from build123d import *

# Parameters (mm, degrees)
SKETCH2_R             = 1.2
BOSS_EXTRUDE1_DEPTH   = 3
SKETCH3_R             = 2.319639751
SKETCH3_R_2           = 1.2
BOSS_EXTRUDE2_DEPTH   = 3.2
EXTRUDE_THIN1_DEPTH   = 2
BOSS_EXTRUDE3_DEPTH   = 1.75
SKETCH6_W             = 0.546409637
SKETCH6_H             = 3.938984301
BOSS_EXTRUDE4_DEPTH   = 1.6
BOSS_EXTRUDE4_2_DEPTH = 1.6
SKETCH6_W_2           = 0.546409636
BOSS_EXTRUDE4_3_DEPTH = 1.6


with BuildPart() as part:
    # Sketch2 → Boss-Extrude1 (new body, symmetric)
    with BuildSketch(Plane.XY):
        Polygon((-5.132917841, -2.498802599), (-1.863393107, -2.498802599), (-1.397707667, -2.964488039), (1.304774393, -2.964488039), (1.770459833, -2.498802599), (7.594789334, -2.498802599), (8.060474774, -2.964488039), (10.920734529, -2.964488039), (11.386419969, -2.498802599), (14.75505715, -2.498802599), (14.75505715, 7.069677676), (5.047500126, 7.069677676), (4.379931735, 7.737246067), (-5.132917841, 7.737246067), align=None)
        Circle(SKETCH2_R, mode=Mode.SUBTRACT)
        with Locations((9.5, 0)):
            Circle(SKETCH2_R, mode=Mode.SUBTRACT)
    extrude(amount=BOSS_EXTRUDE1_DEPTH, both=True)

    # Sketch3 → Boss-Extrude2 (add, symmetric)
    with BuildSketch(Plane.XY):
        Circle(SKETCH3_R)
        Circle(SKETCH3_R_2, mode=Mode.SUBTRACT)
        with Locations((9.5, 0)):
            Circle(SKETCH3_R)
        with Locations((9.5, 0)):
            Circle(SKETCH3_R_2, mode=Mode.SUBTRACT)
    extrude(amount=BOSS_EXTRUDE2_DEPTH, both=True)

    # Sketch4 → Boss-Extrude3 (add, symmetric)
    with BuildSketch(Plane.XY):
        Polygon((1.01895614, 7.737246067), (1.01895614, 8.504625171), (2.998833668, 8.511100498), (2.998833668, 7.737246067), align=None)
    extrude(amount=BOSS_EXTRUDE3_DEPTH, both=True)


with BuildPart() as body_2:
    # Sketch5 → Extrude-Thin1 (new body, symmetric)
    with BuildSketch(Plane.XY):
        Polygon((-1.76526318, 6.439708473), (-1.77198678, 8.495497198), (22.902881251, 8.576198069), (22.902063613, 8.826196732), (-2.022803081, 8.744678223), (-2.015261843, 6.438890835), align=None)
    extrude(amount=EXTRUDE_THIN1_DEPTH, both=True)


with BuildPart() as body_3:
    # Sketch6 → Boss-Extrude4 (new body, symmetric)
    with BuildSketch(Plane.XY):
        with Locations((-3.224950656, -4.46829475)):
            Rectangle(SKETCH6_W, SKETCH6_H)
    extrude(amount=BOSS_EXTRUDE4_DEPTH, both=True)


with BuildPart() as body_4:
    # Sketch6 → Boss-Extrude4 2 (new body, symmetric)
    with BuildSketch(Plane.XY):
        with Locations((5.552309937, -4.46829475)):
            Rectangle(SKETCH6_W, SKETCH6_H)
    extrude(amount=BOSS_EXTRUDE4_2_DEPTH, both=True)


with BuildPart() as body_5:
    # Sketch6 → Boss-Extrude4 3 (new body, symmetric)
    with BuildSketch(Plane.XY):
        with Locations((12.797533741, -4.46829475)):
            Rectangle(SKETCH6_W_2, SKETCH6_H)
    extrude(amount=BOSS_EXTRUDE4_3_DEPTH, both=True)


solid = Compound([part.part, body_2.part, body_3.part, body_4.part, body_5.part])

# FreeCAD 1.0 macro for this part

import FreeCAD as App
import Part
import Sketcher
from FreeCAD import Vector
Q = App.Units.Quantity


def add_polygon(sketch, points):
    """Adds a closed chain of lines whose ends are joined by coincident constraints."""
    first, n = sketch.GeometryCount, len(points)
    for a, b in zip(points, points[1:] + points[:1]):
        sketch.addGeometry(Part.LineSegment(App.Vector(*a, 0), App.Vector(*b, 0)), False)
    for i in range(n):
        sketch.addConstraint(Sketcher.Constraint("Coincident", first + i, 2, first + (i + 1) % n, 1))

doc = App.newDocument("Part")
body = doc.addObject("PartDesign::Body", "Body")

sketch1 = doc.addObject("Sketcher::SketchObject", "Sketch")
body.addObject(sketch1)
sketch1.AttachmentSupport = (doc.XY_Plane, [""])
sketch1.MapMode = "FlatFace"
add_polygon(sketch1, [(-5.1, -2.5), (-1.9, -2.5), (-1.4, -3), (1.3, -3), (1.8, -2.5), (7.6, -2.5), (8.1, -3), (10.9, -3), (11.4, -2.5), (14.8, -2.5), (14.8, 7.1), (5, 7.1), (4.4, 7.7), (-5.1, 7.7)])
sketch1.addGeometry(Part.Circle(Vector(0, 0, 0), Vector(0, 0, 1), 1.2), False)
sketch1.addGeometry(Part.Circle(Vector(9.5, 0, 0), Vector(0, 0, 1), 1.2), False)
sketch1.addConstraint(Sketcher.Constraint("Horizontal", 0))
sketch1.addConstraint(Sketcher.Constraint("Horizontal", 2))
sketch1.addConstraint(Sketcher.Constraint("Horizontal", 4))
sketch1.addConstraint(Sketcher.Constraint("Horizontal", 6))
sketch1.addConstraint(Sketcher.Constraint("Horizontal", 8))
sketch1.addConstraint(Sketcher.Constraint("Vertical", 9))
sketch1.addConstraint(Sketcher.Constraint("Horizontal", 10))
sketch1.addConstraint(Sketcher.Constraint("Horizontal", 12))
sketch1.addConstraint(Sketcher.Constraint("Vertical", 13))
sketch1.addConstraint(Sketcher.Constraint("Coincident", 14, 3, -1, 1))
sketch1.addConstraint(Sketcher.Constraint("Equal", 14, 15))
sketch1.addConstraint(Sketcher.Constraint("PointOnObject", 15, 3, -1))
sketch1.addConstraint(Sketcher.Constraint("Perpendicular", 1, 3))
sketch1.addConstraint(Sketcher.Constraint("Perpendicular", 3, 5))
sketch1.addConstraint(Sketcher.Constraint("Perpendicular", 5, 7))
sketch1.addConstraint(Sketcher.Constraint("Perpendicular", 7, 11))
sketch1.addConstraint(Sketcher.Constraint("Horizontal", 0, 2, 3, 2))
sketch1.addConstraint(Sketcher.Constraint("Horizontal", 2, 2, 5, 2))
sketch1.addConstraint(Sketcher.Constraint("Horizontal", 4, 2, 7, 2))
sketch1.addConstraint(Sketcher.Constraint("Equal", 1, 3))
sketch1.addConstraint(Sketcher.Constraint("Diameter", 14, Q("2.4 mm")))
sketch1.addConstraint(Sketcher.Constraint("DistanceX", -1, 1, 15, 3, Q("9.5 mm")))
sketch1.addConstraint(Sketcher.Constraint("DistanceX", 4, 1, 4, 2, Q("5.82433 mm")))
sketch1.addConstraint(Sketcher.Constraint("DistanceX", 6, 1, 6, 2, Q("2.86026 mm")))
sketch1.addConstraint(Sketcher.Constraint("DistanceX", 12, 2, 12, 1, Q("9.51285 mm")))
sketch1.addConstraint(Sketcher.Constraint("DistanceY", 9, 1, 9, 2, Q("9.56848 mm")))
sketch1.addConstraint(Sketcher.Constraint("DistanceY", 13, 2, 13, 1, Q("10.236049 mm")))
sketch1.addConstraint(Sketcher.Constraint("DistanceX", -1, 1, 10, 2, Q("5.0475 mm")))
sketch1.addConstraint(Sketcher.Constraint("DistanceX", 2, 2, 5, 2, Q("6.7557 mm")))
sketch1.addConstraint(Sketcher.Constraint("DistanceX", 0, 1, 0, 2, Q("3.269525 mm")))
sketch1.addConstraint(Sketcher.Constraint("DistanceX", 2, 1, 2, 2, Q("2.702482 mm")))
sketch1.addConstraint(Sketcher.Constraint("DistanceX", 8, 1, 8, 2, Q("3.368637 mm")))
sketch1.addConstraint(Sketcher.Constraint("DistanceY", 1, 2, -1, 1, Q("2.964488 mm")))
pad1 = doc.addObject("PartDesign::Pad", "Pad")
body.addObject(pad1)
pad1.Profile = sketch1
pad1.Length = 6
pad1.Midplane = True

sketch2 = doc.addObject("Sketcher::SketchObject", "Sketch001")
body.addObject(sketch2)
sketch2.AttachmentSupport = (doc.XY_Plane, [""])
sketch2.MapMode = "FlatFace"
sketch2.addGeometry(Part.Circle(Vector(0, 0, 0), Vector(0, 0, 1), 2.3), False)
sketch2.addGeometry(Part.Circle(Vector(0, 0, 0), Vector(0, 0, 1), 1.2), False)
sketch2.addGeometry(Part.Circle(Vector(9.5, 0, 0), Vector(0, 0, 1), 2.3), False)
sketch2.addGeometry(Part.Circle(Vector(9.5, 0, 0), Vector(0, 0, 1), 1.2), False)
sketch2.addConstraint(Sketcher.Constraint("Coincident", 0, 3, -1, 1))
sketch2.addConstraint(Sketcher.Constraint("Coincident", 1, 3, -1, 1))
sketch2.addConstraint(Sketcher.Constraint("Coincident", 3, 3, 2, 3))
sketch2.addConstraint(Sketcher.Constraint("Equal", 0, 2))
sketch2.addConstraint(Sketcher.Constraint("Equal", 1, 3))
sketch2.addConstraint(Sketcher.Constraint("PointOnObject", 2, 3, -1))
sketch2.addConstraint(Sketcher.Constraint("Diameter", 1, Q("2.4 mm")))
sketch2.addConstraint(Sketcher.Constraint("DistanceX", -1, 1, 2, 3, Q("9.5 mm")))
sketch2.addConstraint(Sketcher.Constraint("Diameter", 0, Q("4.63928 mm")))
pad2 = doc.addObject("PartDesign::Pad", "Pad001")
body.addObject(pad2)
pad2.Profile = sketch2
pad2.Length = 6.4
pad2.Midplane = True

sketch3 = doc.addObject("Sketcher::SketchObject", "Sketch002")
body.addObject(sketch3)
sketch3.AttachmentSupport = (doc.XY_Plane, [""])
sketch3.MapMode = "FlatFace"
add_polygon(sketch3, [(1, 8.5), (1, 7.7), (3, 7.7), (3, 8.5)])
sketch3.addConstraint(Sketcher.Constraint("Vertical", 0))
sketch3.addConstraint(Sketcher.Constraint("Horizontal", 1))
sketch3.addConstraint(Sketcher.Constraint("Vertical", 2))
sketch3.addConstraint(Sketcher.Constraint("DistanceY", 0, 2, 0, 1, Q("0.767379 mm")))
sketch3.addConstraint(Sketcher.Constraint("DistanceY", -1, 1, 2, 2, Q("8.5111 mm")))
sketch3.addConstraint(Sketcher.Constraint("Distance", 3, Q("1.979888 mm")))
sketch3.addConstraint(Sketcher.Constraint("DistanceY", 2, 1, 2, 2, Q("0.773854 mm")))
sketch3.addConstraint(Sketcher.Constraint("DistanceX", -1, 1, 0, 2, Q("1.018956 mm")))
pad3 = doc.addObject("PartDesign::Pad", "Pad002")
body.addObject(pad3)
pad3.Profile = sketch3
pad3.Length = 3.5
pad3.Midplane = True
body2 = doc.addObject("PartDesign::Body", "Body001")

sketch4 = doc.addObject("Sketcher::SketchObject", "Sketch003")
body2.addObject(sketch4)
sketch4.AttachmentSupport = (doc.getObject("XY_Plane001"), [""])
sketch4.MapMode = "FlatFace"
add_polygon(sketch4, [(-1.77, 6.44), (-1.77, 8.5), (22.9, 8.58), (22.9, 8.83), (-2.02, 8.74), (-2.02, 6.44)])
sketch4.addConstraint(Sketcher.Constraint("Perpendicular", 0, 1))
sketch4.addConstraint(Sketcher.Constraint("Perpendicular", 1, 2))
sketch4.addConstraint(Sketcher.Constraint("Perpendicular", 2, 3))
sketch4.addConstraint(Sketcher.Constraint("Perpendicular", 3, 4))
sketch4.addConstraint(Sketcher.Constraint("Perpendicular", 4, 5))
sketch4.addConstraint(Sketcher.Constraint("Equal", 2, 5))
sketch4.addConstraint(Sketcher.Constraint("Distance", 2, Q("0.25 mm")))
sketch4.addConstraint(Sketcher.Constraint("Distance", 1, Q("24.675 mm")))
sketch4.addConstraint(Sketcher.Constraint("Distance", 0, Q("2.0558 mm")))
sketch4.addConstraint(Sketcher.Constraint("DistanceY", -1, 1, 1, 2, Q("8.576198 mm")))
sketch4.addConstraint(Sketcher.Constraint("DistanceY", 0, 2, 1, 2, Q("0.080701 mm")))
sketch4.addConstraint(Sketcher.Constraint("DistanceX", -1, 1, 1, 2, Q("22.902881 mm")))
pad4 = doc.addObject("PartDesign::Pad", "Pad003")
body2.addObject(pad4)
pad4.Profile = sketch4
pad4.Length = 4
pad4.Midplane = True
body3 = doc.addObject("PartDesign::Body", "Body002")

sketch5 = doc.addObject("Sketcher::SketchObject", "Sketch004")
body3.addObject(sketch5)
sketch5.AttachmentSupport = (doc.getObject("XY_Plane002"), [""])
sketch5.MapMode = "FlatFace"
add_polygon(sketch5, [(-3.5, -2.5), (-3.5, -6.4), (-3, -6.4), (-3, -2.5)])
sketch5.addConstraint(Sketcher.Constraint("Vertical", 0))
sketch5.addConstraint(Sketcher.Constraint("Horizontal", 1))
sketch5.addConstraint(Sketcher.Constraint("Vertical", 2))
sketch5.addConstraint(Sketcher.Constraint("Horizontal", 3))
sketch5.addConstraint(Sketcher.Constraint("DistanceX", 1, 1, 1, 2, Q("0.54641 mm")))
sketch5.addConstraint(Sketcher.Constraint("DistanceY", 0, 2, 0, 1, Q("3.938984 mm")))
sketch5.addConstraint(Sketcher.Constraint("DistanceX", 0, 2, -1, 1, Q("3.498155 mm")))
sketch5.addConstraint(Sketcher.Constraint("DistanceY", 0, 2, -1, 1, Q("6.437787 mm")))
pad5 = doc.addObject("PartDesign::Pad", "Pad004")
body3.addObject(pad5)
pad5.Profile = sketch5
pad5.Length = 3.2
pad5.Midplane = True
body4 = doc.addObject("PartDesign::Body", "Body003")

sketch6 = doc.addObject("Sketcher::SketchObject", "Sketch005")
body4.addObject(sketch6)
sketch6.AttachmentSupport = (doc.getObject("XY_Plane003"), [""])
sketch6.MapMode = "FlatFace"
add_polygon(sketch6, [(5.3, -2.5), (5.3, -6.4), (5.8, -6.4), (5.8, -2.5)])
sketch6.addConstraint(Sketcher.Constraint("Vertical", 0))
sketch6.addConstraint(Sketcher.Constraint("Horizontal", 1))
sketch6.addConstraint(Sketcher.Constraint("Vertical", 2))
sketch6.addConstraint(Sketcher.Constraint("Horizontal", 3))
sketch6.addConstraint(Sketcher.Constraint("DistanceX", 1, 1, 1, 2, Q("0.54641 mm")))
sketch6.addConstraint(Sketcher.Constraint("DistanceY", 0, 2, 0, 1, Q("3.938984 mm")))
sketch6.addConstraint(Sketcher.Constraint("DistanceX", -1, 1, 0, 2, Q("5.279105 mm")))
sketch6.addConstraint(Sketcher.Constraint("DistanceY", 0, 2, -1, 1, Q("6.437787 mm")))
pad6 = doc.addObject("PartDesign::Pad", "Pad005")
body4.addObject(pad6)
pad6.Profile = sketch6
pad6.Length = 3.2
pad6.Midplane = True
body5 = doc.addObject("PartDesign::Body", "Body004")

sketch7 = doc.addObject("Sketcher::SketchObject", "Sketch006")
body5.addObject(sketch7)
sketch7.AttachmentSupport = (doc.getObject("XY_Plane004"), [""])
sketch7.MapMode = "FlatFace"
add_polygon(sketch7, [(12.5, -2.5), (12.5, -6.4), (13.1, -6.4), (13.1, -2.5)])
sketch7.addConstraint(Sketcher.Constraint("Vertical", 0))
sketch7.addConstraint(Sketcher.Constraint("Horizontal", 1))
sketch7.addConstraint(Sketcher.Constraint("Vertical", 2))
sketch7.addConstraint(Sketcher.Constraint("Horizontal", 3))
sketch7.addConstraint(Sketcher.Constraint("DistanceX", 1, 1, 1, 2, Q("0.54641 mm")))
sketch7.addConstraint(Sketcher.Constraint("DistanceY", 0, 2, 0, 1, Q("3.938984 mm")))
sketch7.addConstraint(Sketcher.Constraint("DistanceX", -1, 1, 0, 2, Q("12.524329 mm")))
sketch7.addConstraint(Sketcher.Constraint("DistanceY", 0, 2, -1, 1, Q("6.437787 mm")))
pad7 = doc.addObject("PartDesign::Pad", "Pad006")
body5.addObject(pad7)
pad7.Profile = sketch7
pad7.Length = 3.2
pad7.Midplane = True

doc.recompute()
